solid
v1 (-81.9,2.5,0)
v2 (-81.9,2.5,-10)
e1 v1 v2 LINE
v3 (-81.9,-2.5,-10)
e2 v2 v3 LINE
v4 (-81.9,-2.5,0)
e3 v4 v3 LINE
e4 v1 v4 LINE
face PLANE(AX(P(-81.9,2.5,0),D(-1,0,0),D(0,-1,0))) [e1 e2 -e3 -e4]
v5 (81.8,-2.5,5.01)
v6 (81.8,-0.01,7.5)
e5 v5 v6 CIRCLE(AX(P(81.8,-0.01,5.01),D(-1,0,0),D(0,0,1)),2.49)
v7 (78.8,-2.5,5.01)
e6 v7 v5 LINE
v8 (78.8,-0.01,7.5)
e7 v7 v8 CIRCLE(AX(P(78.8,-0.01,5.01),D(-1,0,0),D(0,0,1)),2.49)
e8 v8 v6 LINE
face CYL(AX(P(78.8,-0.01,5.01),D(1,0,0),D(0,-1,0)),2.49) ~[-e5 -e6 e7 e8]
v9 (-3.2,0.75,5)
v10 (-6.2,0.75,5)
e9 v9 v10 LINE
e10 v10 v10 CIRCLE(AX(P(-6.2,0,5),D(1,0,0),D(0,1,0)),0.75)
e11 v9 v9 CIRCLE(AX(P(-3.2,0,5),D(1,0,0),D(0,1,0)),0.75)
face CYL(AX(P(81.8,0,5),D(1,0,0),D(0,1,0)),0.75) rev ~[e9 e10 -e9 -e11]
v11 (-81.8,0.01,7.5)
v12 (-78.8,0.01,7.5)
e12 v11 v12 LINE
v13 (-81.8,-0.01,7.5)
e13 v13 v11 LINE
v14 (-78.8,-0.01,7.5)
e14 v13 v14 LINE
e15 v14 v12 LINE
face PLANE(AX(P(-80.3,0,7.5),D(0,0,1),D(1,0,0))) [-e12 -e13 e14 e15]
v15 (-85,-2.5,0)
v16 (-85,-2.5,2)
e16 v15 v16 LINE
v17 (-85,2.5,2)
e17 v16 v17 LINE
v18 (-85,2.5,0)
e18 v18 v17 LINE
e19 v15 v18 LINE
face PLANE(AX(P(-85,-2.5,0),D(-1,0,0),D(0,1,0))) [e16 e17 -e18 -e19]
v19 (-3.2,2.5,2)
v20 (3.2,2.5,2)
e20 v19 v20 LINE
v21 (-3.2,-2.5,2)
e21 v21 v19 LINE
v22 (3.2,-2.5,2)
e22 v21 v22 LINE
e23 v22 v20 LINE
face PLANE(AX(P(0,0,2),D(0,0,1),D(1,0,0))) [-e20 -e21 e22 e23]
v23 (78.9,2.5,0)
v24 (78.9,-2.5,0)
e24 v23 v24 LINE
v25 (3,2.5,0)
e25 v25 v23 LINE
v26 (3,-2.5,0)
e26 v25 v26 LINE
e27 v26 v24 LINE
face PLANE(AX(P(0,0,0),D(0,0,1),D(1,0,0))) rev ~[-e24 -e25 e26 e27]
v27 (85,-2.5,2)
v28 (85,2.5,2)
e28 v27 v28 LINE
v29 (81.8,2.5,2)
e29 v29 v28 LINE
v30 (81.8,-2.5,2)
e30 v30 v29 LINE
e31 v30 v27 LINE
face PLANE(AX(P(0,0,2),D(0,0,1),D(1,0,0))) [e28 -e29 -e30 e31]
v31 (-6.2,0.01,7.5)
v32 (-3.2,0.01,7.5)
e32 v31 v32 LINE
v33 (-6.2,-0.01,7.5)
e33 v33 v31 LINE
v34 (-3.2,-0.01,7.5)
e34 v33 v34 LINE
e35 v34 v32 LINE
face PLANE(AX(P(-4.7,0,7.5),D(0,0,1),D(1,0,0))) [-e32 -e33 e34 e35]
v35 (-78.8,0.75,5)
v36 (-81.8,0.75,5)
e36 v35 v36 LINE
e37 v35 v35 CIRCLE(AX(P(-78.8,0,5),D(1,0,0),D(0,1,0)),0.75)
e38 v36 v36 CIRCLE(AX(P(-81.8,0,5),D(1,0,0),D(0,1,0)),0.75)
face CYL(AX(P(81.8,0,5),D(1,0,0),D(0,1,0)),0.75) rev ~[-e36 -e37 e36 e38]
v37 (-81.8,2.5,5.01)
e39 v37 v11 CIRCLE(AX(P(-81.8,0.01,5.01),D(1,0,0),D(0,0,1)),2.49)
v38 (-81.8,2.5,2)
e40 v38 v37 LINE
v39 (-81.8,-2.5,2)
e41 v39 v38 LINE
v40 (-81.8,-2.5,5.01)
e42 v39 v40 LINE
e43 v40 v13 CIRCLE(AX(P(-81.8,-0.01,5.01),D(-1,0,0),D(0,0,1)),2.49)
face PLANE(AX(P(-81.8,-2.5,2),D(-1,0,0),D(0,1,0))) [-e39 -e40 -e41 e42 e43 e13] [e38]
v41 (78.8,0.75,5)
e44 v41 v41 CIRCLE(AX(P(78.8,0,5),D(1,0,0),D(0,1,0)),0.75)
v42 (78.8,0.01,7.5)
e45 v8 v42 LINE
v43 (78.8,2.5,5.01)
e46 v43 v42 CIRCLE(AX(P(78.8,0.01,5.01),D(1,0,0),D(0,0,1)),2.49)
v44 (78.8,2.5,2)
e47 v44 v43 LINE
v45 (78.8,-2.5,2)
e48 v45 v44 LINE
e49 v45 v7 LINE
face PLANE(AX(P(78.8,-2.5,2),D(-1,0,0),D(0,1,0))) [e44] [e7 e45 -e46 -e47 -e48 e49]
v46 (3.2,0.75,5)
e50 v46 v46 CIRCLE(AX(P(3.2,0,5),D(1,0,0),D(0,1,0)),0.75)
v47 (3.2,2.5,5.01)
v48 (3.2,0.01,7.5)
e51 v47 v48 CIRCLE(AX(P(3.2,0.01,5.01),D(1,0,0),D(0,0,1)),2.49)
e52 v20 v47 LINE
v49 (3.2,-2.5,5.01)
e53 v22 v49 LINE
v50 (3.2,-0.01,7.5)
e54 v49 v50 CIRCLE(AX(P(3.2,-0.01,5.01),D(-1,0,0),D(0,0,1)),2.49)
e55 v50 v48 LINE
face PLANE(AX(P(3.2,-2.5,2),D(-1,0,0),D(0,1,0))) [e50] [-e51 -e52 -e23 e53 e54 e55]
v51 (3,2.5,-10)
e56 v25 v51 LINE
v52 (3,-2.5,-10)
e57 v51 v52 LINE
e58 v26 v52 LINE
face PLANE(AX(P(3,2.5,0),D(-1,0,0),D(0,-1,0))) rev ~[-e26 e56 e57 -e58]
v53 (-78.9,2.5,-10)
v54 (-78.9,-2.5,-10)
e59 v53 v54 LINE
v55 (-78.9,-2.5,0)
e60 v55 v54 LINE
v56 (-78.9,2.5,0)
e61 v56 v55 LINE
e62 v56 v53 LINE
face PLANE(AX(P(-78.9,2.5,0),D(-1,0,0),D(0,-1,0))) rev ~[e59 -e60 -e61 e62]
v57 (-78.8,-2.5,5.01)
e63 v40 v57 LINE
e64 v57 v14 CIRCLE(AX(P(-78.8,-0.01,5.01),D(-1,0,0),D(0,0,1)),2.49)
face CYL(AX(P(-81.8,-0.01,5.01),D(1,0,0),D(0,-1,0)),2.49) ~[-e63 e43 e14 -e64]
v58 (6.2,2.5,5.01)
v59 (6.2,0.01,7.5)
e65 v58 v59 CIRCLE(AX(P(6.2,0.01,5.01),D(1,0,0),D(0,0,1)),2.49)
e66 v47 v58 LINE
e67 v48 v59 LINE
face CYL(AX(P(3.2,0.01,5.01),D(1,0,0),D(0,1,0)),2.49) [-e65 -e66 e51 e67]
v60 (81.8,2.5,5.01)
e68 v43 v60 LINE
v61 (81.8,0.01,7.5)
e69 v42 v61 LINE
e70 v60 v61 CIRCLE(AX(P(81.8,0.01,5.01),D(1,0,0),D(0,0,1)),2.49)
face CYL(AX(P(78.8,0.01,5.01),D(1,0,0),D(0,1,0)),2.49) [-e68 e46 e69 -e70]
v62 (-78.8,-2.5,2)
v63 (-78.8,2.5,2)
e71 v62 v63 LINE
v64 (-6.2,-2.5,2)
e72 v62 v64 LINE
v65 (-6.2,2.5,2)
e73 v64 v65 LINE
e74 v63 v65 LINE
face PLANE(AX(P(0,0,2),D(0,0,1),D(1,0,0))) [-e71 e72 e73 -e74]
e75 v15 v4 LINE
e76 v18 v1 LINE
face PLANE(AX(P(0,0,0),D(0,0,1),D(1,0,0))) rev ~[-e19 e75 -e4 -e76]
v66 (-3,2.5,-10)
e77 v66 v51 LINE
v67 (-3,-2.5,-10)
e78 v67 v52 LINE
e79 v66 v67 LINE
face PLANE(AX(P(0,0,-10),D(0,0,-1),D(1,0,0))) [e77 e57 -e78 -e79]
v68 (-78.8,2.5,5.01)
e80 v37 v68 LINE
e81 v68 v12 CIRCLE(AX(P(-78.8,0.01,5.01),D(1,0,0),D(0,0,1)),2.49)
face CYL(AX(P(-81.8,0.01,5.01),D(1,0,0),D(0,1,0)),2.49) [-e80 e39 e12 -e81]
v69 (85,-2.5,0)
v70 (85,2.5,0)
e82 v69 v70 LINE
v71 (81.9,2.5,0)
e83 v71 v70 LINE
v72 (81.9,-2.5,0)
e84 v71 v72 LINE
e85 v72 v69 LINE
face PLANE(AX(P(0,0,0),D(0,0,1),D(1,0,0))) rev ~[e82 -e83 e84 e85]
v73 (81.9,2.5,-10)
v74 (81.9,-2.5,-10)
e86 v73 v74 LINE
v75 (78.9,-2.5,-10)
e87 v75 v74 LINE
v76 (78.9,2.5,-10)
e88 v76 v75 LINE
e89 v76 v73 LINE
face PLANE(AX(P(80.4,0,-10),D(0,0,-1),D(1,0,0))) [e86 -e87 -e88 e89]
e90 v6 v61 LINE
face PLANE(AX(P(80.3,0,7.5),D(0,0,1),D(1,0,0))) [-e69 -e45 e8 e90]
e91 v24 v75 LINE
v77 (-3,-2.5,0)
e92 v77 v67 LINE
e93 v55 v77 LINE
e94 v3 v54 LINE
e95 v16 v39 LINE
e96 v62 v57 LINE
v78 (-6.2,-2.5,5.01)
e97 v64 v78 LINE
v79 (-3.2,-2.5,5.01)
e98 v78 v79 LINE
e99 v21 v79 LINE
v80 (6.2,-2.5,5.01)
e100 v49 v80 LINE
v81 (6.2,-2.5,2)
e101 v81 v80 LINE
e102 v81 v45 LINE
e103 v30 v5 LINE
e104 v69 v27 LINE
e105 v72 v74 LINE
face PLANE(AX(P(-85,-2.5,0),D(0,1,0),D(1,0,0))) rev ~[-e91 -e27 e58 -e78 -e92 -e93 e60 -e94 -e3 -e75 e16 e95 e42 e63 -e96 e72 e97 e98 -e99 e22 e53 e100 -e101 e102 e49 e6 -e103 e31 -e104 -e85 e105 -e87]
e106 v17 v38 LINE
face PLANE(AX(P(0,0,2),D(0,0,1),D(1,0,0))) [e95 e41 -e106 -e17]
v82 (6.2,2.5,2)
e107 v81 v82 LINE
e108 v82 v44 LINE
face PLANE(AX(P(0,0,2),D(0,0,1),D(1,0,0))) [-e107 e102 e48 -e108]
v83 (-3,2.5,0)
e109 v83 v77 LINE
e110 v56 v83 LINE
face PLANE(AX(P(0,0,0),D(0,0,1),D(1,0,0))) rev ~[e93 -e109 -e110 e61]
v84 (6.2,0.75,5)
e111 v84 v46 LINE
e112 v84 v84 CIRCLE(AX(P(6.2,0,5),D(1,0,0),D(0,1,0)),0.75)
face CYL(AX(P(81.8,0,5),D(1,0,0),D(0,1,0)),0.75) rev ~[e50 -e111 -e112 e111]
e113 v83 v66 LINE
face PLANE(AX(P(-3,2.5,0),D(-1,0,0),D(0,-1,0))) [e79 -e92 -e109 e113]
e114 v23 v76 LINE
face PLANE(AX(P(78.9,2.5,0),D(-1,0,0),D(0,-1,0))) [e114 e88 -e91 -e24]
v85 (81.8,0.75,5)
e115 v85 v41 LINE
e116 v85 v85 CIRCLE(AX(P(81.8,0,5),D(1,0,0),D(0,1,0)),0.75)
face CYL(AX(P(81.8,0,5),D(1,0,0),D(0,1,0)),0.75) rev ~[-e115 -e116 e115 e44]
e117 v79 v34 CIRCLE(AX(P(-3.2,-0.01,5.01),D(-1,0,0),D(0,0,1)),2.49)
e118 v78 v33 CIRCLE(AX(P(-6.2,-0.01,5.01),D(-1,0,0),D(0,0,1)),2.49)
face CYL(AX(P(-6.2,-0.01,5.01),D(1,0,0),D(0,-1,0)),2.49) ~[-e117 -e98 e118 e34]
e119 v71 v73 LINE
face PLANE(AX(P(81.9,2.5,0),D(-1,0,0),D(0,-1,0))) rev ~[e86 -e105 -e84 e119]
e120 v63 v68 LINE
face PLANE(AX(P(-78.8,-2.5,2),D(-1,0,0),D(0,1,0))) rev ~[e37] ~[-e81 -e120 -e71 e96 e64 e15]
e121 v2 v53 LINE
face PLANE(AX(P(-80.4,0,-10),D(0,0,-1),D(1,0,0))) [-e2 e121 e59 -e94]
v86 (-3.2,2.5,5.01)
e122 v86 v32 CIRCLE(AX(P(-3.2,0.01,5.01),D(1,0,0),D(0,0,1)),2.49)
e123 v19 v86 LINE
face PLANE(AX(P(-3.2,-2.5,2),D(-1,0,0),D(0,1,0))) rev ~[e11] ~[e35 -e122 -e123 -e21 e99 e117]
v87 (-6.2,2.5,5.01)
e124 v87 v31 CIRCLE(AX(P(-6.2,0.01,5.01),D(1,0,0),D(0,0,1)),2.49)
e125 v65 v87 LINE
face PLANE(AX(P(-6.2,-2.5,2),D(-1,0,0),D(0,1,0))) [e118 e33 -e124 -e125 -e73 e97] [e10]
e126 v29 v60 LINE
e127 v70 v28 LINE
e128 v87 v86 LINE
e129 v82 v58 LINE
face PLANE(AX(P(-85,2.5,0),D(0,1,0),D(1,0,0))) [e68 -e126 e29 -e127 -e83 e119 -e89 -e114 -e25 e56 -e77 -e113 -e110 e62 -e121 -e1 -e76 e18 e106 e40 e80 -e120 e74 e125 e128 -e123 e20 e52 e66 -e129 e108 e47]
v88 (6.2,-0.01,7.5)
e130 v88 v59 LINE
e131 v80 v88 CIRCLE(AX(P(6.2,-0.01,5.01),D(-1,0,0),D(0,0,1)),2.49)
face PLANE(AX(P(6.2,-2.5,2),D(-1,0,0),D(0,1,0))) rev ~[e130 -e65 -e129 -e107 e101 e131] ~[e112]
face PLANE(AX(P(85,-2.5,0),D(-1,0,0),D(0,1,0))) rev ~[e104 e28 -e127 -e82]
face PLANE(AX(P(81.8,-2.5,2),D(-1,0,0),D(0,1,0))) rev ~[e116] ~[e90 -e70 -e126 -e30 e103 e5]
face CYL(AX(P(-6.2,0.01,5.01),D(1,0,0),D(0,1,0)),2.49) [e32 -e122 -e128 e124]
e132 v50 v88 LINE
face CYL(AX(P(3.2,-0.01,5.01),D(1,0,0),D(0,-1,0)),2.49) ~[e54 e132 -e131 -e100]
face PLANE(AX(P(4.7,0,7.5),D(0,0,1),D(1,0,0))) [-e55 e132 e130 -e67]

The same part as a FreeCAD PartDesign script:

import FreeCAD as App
import Part
import Sketcher
Q = App.Units.Quantity


def edges_at(feature, points):
    """Names of the edges that pass closest to the given points."""
    edges = feature.Shape.Edges
    near = lambda p: min(range(len(edges)), key=lambda i: edges[i].distToShape(Part.Vertex(*p))[0])
    return sorted({f"Edge{near(p) + 1}" for p in points})


def add_polygon(sketch, points):
    """Adds a closed chain of lines whose ends are joined by coincident constraints."""
    first, n = sketch.GeometryCount, len(points)
    for a, b in zip(points, points[1:] + points[:1]):
        sketch.addGeometry(Part.LineSegment(App.Vector(*a, 0), App.Vector(*b, 0)), False)
    for i in range(n):
        sketch.addConstraint(Sketcher.Constraint("Coincident", first + i, 2, first + (i + 1) % n, 1))

doc = App.newDocument("Part")
body = doc.addObject("PartDesign::Body", "Body")

sketch1 = doc.addObject("Sketcher::SketchObject", "Sketch")
body.addObject(sketch1)
sketch1.AttachmentSupport = (doc.XY_Plane, [""])
sketch1.MapMode = "FlatFace"
add_polygon(sketch1, [(-85, 2), (-85, -2), (85, -2), (85, 2)])
sketch1.addConstraint([
    Sketcher.Constraint("Vertical", 0),
    Sketcher.Constraint("Horizontal", 1),
    Sketcher.Constraint("Vertical", 2),
    Sketcher.Constraint("Horizontal", 3),
    Sketcher.Constraint("Symmetric", 0, 2, 2, 2, -1, 1),
    Sketcher.Constraint("DistanceX", 1, 1, 1, 2, Q("170 mm")),
    Sketcher.Constraint("DistanceY", 0, 2, 0, 1, Q("5 mm")),
])
pad1 = doc.addObject("PartDesign::Pad", "Pad")
body.addObject(pad1)
pad1.Profile = sketch1
pad1.Length = 2

sketch2 = doc.addObject("Sketcher::SketchObject", "Sketch001")
body.addObject(sketch2)
sketch2.AttachmentSupport = (doc.XY_Plane, [""])
sketch2.MapMode = "FlatFace"
sketch2.AttachmentOffset = App.Placement(App.Vector(0, 0, 2), App.Rotation())
add_polygon(sketch2, [(-81.8, 2.5), (-81.8, -2.5), (-78.8, -2.5), (-78.8, 2.5)])
add_polygon(sketch2, [(78.8, 2.5), (78.8, -2.5), (81.8, -2.5), (81.8, 2.5)])
add_polygon(sketch2, [(-6.2, 2.5), (-6.2, -2.5), (-3.2, -2.5), (-3.2, 2.5)])
add_polygon(sketch2, [(3.2, 2.5), (3.2, -2.5), (6.2, -2.5), (6.2, 2.5)])
sketch2.addConstraint([
    Sketcher.Constraint("Vertical", 0),
    Sketcher.Constraint("Horizontal", 1),
    Sketcher.Constraint("Vertical", 2),
    Sketcher.Constraint("Horizontal", 3),
    Sketcher.Constraint("Vertical", 4),
    Sketcher.Constraint("Horizontal", 5),
    Sketcher.Constraint("Vertical", 6),
    Sketcher.Constraint("Horizontal", 7),
    Sketcher.Constraint("Vertical", 8),
    Sketcher.Constraint("Horizontal", 9),
    Sketcher.Constraint("Vertical", 10),
    Sketcher.Constraint("Horizontal", 11),
    Sketcher.Constraint("Vertical", 12),
    Sketcher.Constraint("Horizontal", 13),
    Sketcher.Constraint("Vertical", 14),
    Sketcher.Constraint("Horizontal", 15),
    Sketcher.Constraint("Symmetric", 2, 2, 4, 2, -1, 1),
    Sketcher.Constraint("Symmetric", 0, 2, 6, 2, -1, 1),
    Sketcher.Constraint("Symmetric", 10, 2, 12, 2, -1, 1),
    Sketcher.Constraint("Symmetric", 8, 2, 14, 2, -1, 1),
    Sketcher.Constraint("Horizontal", 1, 2, 4, 2),
    Sketcher.Constraint("Horizontal", 5, 2, 8, 2),
    Sketcher.Constraint("Horizontal", 7, 2, 10, 2),
    Sketcher.Constraint("Equal", 7, 9),
    Sketcher.Constraint("DistanceX", 1, 1, 1, 2, Q("3 mm")),
    Sketcher.Constraint("DistanceY", 0, 2, 0, 1, Q("5 mm")),
    Sketcher.Constraint("DistanceX", 8, 2, 4, 2, Q("85 mm")),
    Sketcher.Constraint("DistanceX", 0, 2, -1, 1, Q("81.8 mm")),
])
pad2 = doc.addObject("PartDesign::Pad", "Pad001")
body.addObject(pad2)
pad2.Profile = sketch2
pad2.Length = 5.5
doc.recompute()

fillet = doc.addObject("PartDesign::Fillet", "Fillet")
body.addObject(fillet)
fillet.Base = (pad2, edges_at(pad2, [
    (-80.3, -2.5, 7.5),
    (-4.7, -2.5, 7.5),
    (4.7, -2.5, 7.5),
    (80.3, -2.5, 7.5),
    (80.3, 2.5, 7.5),
    (4.7, 2.5, 7.5),
    (-4.7, 2.5, 7.5),
    (-80.3, 2.5, 7.5),
]))
fillet.Radius = 2.49

sketch3 = doc.addObject("Sketcher::SketchObject", "Sketch002")
body.addObject(sketch3)
sketch3.AttachmentSupport = (doc.YZ_Plane, [""])
sketch3.MapMode = "FlatFace"
sketch3.AttachmentOffset = App.Placement(App.Vector(0, 0, 81.8), App.Rotation())
sketch3.addGeometry(Part.Circle(App.Vector(0, 5, 0), App.Vector(0, 0, 1), 0.8), False)
sketch3.addConstraint([
    Sketcher.Constraint("PointOnObject", 0, 3, -2),
    Sketcher.Constraint("Diameter", 0, Q("1.5 mm")),
    Sketcher.Constraint("DistanceY", -1, 1, 0, 3, Q("5 mm")),
])
pocket1 = doc.addObject("PartDesign::Pocket", "Pocket")
body.addObject(pocket1)
pocket1.Profile = sketch3
pocket1.Length = 200

sketch4 = doc.addObject("Sketcher::SketchObject", "Sketch003")
body.addObject(sketch4)
sketch4.AttachmentSupport = (doc.XY_Plane, [""])
sketch4.MapMode = "FlatFace"
add_polygon(sketch4, [(-81.9, -2.5), (-81.9, 2.5), (-78.9, 2.5), (-78.9, -2.5)])
add_polygon(sketch4, [(-3, -2.5), (-3, 2.5), (3, 2.5), (3, -2.5)])
add_polygon(sketch4, [(78.9, -2.5), (78.9, 2.5), (81.9, 2.5), (81.9, -2.5)])
sketch4.addConstraint([
    Sketcher.Constraint("Vertical", 0),
    Sketcher.Constraint("Horizontal", 1),
    Sketcher.Constraint("Vertical", 2),
    Sketcher.Constraint("Horizontal", 3),
    Sketcher.Constraint("Vertical", 4),
    Sketcher.Constraint("Horizontal", 5),
    Sketcher.Constraint("Vertical", 6),
    Sketcher.Constraint("Horizontal", 7),
    Sketcher.Constraint("Vertical", 8),
    Sketcher.Constraint("Horizontal", 9),
    Sketcher.Constraint("Vertical", 10),
    Sketcher.Constraint("Horizontal", 11),
    Sketcher.Constraint("Symmetric", 4, 2, 6, 2, -1, 1),
    Sketcher.Constraint("Symmetric", 2, 2, 8, 2, -1, 1),
    Sketcher.Constraint("Symmetric", 0, 2, 10, 2, -1, 1),
    Sketcher.Constraint("Horizontal", 1, 2, 4, 2),
    Sketcher.Constraint("Horizontal", 3, 2, 6, 2),
    Sketcher.Constraint("DistanceX", 1, 1, 1, 2, Q("3 mm")),
    Sketcher.Constraint("DistanceX", 5, 1, 5, 2, Q("6 mm")),
    Sketcher.Constraint("DistanceY", 0, 1, 0, 2, Q("5 mm")),
    Sketcher.Constraint("DistanceX", 0, 2, -1, 1, Q("81.9 mm")),
])
pad3 = doc.addObject("PartDesign::Pad", "Pad002")
body.addObject(pad3)
pad3.Profile = sketch4
pad3.Length = 10
pad3.Reversed = True

doc.recompute()
